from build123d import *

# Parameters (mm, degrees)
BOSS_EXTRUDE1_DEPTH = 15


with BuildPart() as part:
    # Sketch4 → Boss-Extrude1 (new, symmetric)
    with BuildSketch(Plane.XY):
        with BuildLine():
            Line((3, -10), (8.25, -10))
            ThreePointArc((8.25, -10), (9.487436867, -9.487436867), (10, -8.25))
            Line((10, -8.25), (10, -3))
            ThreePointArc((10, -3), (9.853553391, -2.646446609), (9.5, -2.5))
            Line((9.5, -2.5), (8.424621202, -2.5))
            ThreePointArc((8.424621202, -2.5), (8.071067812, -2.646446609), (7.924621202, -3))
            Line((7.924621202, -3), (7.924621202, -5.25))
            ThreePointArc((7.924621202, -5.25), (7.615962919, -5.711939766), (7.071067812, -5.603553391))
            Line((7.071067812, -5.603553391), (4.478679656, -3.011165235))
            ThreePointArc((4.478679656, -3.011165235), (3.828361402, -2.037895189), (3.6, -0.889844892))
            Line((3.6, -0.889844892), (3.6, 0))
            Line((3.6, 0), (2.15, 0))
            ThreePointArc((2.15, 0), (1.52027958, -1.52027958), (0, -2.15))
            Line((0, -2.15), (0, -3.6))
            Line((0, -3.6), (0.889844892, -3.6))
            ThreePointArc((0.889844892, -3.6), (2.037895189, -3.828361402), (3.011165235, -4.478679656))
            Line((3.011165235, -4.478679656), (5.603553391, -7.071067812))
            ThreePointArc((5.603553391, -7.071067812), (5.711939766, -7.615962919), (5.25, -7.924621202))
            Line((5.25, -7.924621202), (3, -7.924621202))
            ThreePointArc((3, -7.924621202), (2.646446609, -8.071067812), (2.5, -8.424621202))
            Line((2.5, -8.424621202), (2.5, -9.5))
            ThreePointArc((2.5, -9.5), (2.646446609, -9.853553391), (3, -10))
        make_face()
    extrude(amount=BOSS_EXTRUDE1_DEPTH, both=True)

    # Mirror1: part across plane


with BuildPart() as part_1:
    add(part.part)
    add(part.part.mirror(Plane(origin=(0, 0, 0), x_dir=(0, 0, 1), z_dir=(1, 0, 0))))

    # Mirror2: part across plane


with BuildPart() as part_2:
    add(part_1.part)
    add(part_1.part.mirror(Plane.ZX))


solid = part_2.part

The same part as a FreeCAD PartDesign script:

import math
import FreeCAD as App
import Part
import Sketcher

doc = App.newDocument("Part")
body = doc.addObject("PartDesign::Body", "Body")

sketch1 = doc.addObject("Sketcher::SketchObject", "Sketch")
body.addObject(sketch1)
sketch1.AttachmentSupport = (doc.XY_Plane, [""])
sketch1.MapMode = "FlatFace"
sketch1.addGeometry([
    Part.LineSegment(App.Vector(3, -10, 0), App.Vector(8.25, -10, 0)),
    Part.ArcOfCircle(Part.Circle(App.Vector(8.25, -8.25, 0), App.Vector(0, 0, 1), 1.75), math.radians(-90), math.radians(0)),
    Part.LineSegment(App.Vector(10, -8.25, 0), App.Vector(10, -3, 0)),
    Part.ArcOfCircle(Part.Circle(App.Vector(9.5, -3, 0), App.Vector(0, 0, 1), 0.5), math.radians(0), math.radians(90)),
    Part.LineSegment(App.Vector(9.5, -2.5, 0), App.Vector(8.42, -2.5, 0)),
    Part.ArcOfCircle(Part.Circle(App.Vector(8.42, -3, 0), App.Vector(0, 0, 1), 0.5), math.radians(90), math.radians(180)),
    Part.LineSegment(App.Vector(7.92, -3, 0), App.Vector(7.92, -5.25, 0)),
    Part.ArcOfCircle(Part.Circle(App.Vector(7.42, -5.25, 0), App.Vector(0, 0, 1), 0.5), math.radians(-135), math.radians(0)),
    Part.LineSegment(App.Vector(7.07, -5.6, 0), App.Vector(4.48, -3.01, 0)),
    Part.ArcOfCircle(Part.Circle(App.Vector(6.6, -0.89, 0), App.Vector(0, 0, 1), 3), math.radians(180), math.radians(225)),
    Part.LineSegment(App.Vector(3.6, -0.89, 0), App.Vector(3.6, 0, 0)),
    Part.LineSegment(App.Vector(3.6, 0, 0), App.Vector(2.15, 0, 0)),
    Part.ArcOfCircle(Part.Circle(App.Vector(0, 0, 0), App.Vector(0, 0, 1), 2.15), math.radians(-90), math.radians(0)),
    Part.LineSegment(App.Vector(0, -2.15, 0), App.Vector(0, -3.6, 0)),
    Part.LineSegment(App.Vector(0, -3.6, 0), App.Vector(0.89, -3.6, 0)),
    Part.ArcOfCircle(Part.Circle(App.Vector(0.89, -6.6, 0), App.Vector(0, 0, 1), 3), math.radians(45), math.radians(90)),
    Part.LineSegment(App.Vector(3.01, -4.48, 0), App.Vector(5.6, -7.07, 0)),
    Part.ArcOfCircle(Part.Circle(App.Vector(5.25, -7.42, 0), App.Vector(0, 0, 1), 0.5), math.radians(-90), math.radians(45)),
    Part.LineSegment(App.Vector(5.25, -7.92, 0), App.Vector(3, -7.92, 0)),
    Part.ArcOfCircle(Part.Circle(App.Vector(3, -8.42, 0), App.Vector(0, 0, 1), 0.5), math.radians(90), math.radians(180)),
    Part.LineSegment(App.Vector(2.5, -8.42, 0), App.Vector(2.5, -9.5, 0)),
    Part.ArcOfCircle(Part.Circle(App.Vector(3, -9.5, 0), App.Vector(0, 0, 1), 0.5), math.radians(180), math.radians(270)),
], False)
sketch1.addConstraint([
    Sketcher.Constraint("Tangent", 0, 2, 1, 1),
    Sketcher.Constraint("Tangent", 1, 2, 2, 1),
    Sketcher.Constraint("Tangent", 2, 2, 3, 1),
    Sketcher.Constraint("Tangent", 3, 2, 4, 1),
    Sketcher.Constraint("Tangent", 4, 2, 5, 1),
    Sketcher.Constraint("Tangent", 5, 2, 6, 1),
    Sketcher.Constraint("Tangent", 6, 2, 7, 2),
    Sketcher.Constraint("Tangent", 7, 1, 8, 1),
    Sketcher.Constraint("Tangent", 8, 2, 9, 2),
    Sketcher.Constraint("Tangent", 9, 1, 10, 1),
    Sketcher.Constraint("Coincident", 10, 2, 11, 1),
    Sketcher.Constraint("Coincident", 11, 2, 12, 2),
    Sketcher.Constraint("Coincident", 12, 1, 13, 1),
    Sketcher.Constraint("Coincident", 13, 2, 14, 1),
    Sketcher.Constraint("Tangent", 14, 2, 15, 2),
    Sketcher.Constraint("Tangent", 15, 1, 16, 1),
    Sketcher.Constraint("Tangent", 16, 2, 17, 2),
    Sketcher.Constraint("Tangent", 17, 1, 18, 1),
    Sketcher.Constraint("Tangent", 18, 2, 19, 1),
    Sketcher.Constraint("Tangent", 19, 2, 20, 1),
    Sketcher.Constraint("Tangent", 20, 2, 21, 1),
    Sketcher.Constraint("Tangent", 21, 2, 0, 1),
    Sketcher.Constraint("Horizontal", 0),
    Sketcher.Constraint("Vertical", 2),
    Sketcher.Constraint("Horizontal", 4),
    Sketcher.Constraint("Vertical", 6),
    Sketcher.Constraint("Vertical", 10),
    Sketcher.Constraint("Horizontal", 11),
    Sketcher.Constraint("Vertical", 13),
    Sketcher.Constraint("Horizontal", 14),
    Sketcher.Constraint("Horizontal", 18),
    Sketcher.Constraint("Vertical", 20),
    Sketcher.Constraint("Coincident", 12, 3, -1, 1),
    Sketcher.Constraint("Equal", 3, 5),
    Sketcher.Constraint("Equal", 5, 7),
    Sketcher.Constraint("Equal", 9, 15),
    Sketcher.Constraint("Equal", 7, 17),
    Sketcher.Constraint("Equal", 17, 19),
    Sketcher.Constraint("Equal", 19, 21),
    Sketcher.Constraint("PointOnObject", 10, 2, -1),
    Sketcher.Constraint("PointOnObject", 12, 1, -2),
    Sketcher.Constraint("Parallel", 8, 16),
    Sketcher.Constraint("Equal", 0, 2),
    Sketcher.Constraint("Equal", 18, 6),
    Sketcher.Constraint("Equal", 14, 10),
    Sketcher.Constraint("Equal", 11, 13),
    Sketcher.Constraint("Equal", 4, 20),
    Sketcher.Constraint("Equal", 8, 16),
    Sketcher.Constraint("Radius", 9, 3.0),
    Sketcher.Constraint("Radius", 3, 0.5),
    Sketcher.Constraint("Radius", 1, 1.75),
    Sketcher.Constraint("Radius", 12, 2.15),
    Sketcher.Constraint("DistanceY", 3, 3, -1, 1, 3.0),
    Sketcher.Constraint("DistanceY", 0, 2, -1, 1, 10.0),
    Sketcher.Constraint("DistanceY", 1, 3, 7, 3, 3.0),
    Sketcher.Constraint("DistanceX", 11, 2, 11, 1, 1.45),
    Sketcher.Constraint("DistanceX", 4, 2, 4, 1, 1.075379),
])
pad1 = doc.addObject("PartDesign::Pad", "Pad")
body.addObject(pad1)
pad1.Profile = sketch1
pad1.Length = 30
pad1.Midplane = True
body2 = doc.addObject("PartDesign::Body", "Body001")
doc.recompute()

body2.BaseFeature = body
doc.recompute()

mirroring = doc.addObject("Part::Mirroring", "Mirroring")
mirroring.Source = body
mirroring.Base = App.Vector(0, 0, 0)
mirroring.Normal = App.Vector(1, 0, 0)
body3 = doc.addObject("PartDesign::Body", "Body002")
body3.BaseFeature = mirroring
boolean = doc.addObject("PartDesign::Boolean", "Boolean")
body2.addObject(boolean)
boolean.Type = "Fuse"
boolean.addObjects([body3])
doc.recompute()
body4 = doc.addObject("PartDesign::Body", "Body003")
doc.recompute()

body4.BaseFeature = body2
doc.recompute()

mirroring2 = doc.addObject("Part::Mirroring", "Mirroring001")
mirroring2.Source = body2
mirroring2.Base = App.Vector(0, 0, 0)
mirroring2.Normal = App.Vector(0, 1, 0)
body5 = doc.addObject("PartDesign::Body", "Body004")
body5.BaseFeature = mirroring2
boolean2 = doc.addObject("PartDesign::Boolean", "Boolean001")
body4.addObject(boolean2)
boolean2.Type = "Fuse"
boolean2.addObjects([body5])
doc.recompute()
mirroring.Visibility = False
mirroring2.Visibility = False

doc.recompute()
